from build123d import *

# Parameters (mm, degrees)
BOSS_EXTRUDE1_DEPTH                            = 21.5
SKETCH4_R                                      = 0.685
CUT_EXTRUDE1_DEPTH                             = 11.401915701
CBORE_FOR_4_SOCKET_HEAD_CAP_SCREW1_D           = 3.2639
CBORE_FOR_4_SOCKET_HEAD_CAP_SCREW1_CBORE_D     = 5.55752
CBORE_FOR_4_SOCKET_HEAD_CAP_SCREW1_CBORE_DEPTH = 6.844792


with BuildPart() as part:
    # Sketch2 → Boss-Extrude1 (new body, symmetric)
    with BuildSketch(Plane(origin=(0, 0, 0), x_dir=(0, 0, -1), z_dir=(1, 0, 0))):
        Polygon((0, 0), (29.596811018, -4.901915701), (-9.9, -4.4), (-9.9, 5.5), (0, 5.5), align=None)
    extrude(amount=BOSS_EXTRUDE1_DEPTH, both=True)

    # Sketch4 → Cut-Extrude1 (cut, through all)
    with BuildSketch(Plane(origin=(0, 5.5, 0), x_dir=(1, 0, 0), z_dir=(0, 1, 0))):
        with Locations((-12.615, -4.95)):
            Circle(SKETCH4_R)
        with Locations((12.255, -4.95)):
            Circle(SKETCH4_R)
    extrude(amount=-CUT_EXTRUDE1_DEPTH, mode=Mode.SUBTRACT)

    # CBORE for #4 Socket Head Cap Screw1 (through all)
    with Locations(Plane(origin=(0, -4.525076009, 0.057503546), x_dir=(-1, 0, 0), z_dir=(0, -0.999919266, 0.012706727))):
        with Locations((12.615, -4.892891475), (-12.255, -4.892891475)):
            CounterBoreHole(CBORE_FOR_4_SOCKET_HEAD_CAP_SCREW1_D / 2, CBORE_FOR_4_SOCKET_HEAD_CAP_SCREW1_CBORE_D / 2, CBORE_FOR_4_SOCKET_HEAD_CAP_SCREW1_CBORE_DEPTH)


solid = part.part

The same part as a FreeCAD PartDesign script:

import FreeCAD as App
import Part
import Sketcher
from FreeCAD import Vector

doc = App.newDocument("Part")
params = doc.addObject("Spreadsheet::Sheet", "Params")
for row, (alias, value) in enumerate([
    ("sketch1_length", "30 mm"),
    ("sketch1_width", "5.5 mm"),
    ("sketch1_width2", "9.9 mm"),
    ("sketch1_length2", "39.5 mm"),
    ("pad1_length", "43 mm"),
    ("sketch2_diameter", "1.37 mm"),
    ("hole_diameter", "3.2639 mm"),
    ("hole_cbore_diameter", "5.55752 mm"),
    ("hole_cbore_depth", "6.844792 mm"),
], start=1):
    params.set(f"A{row}", alias)
    params.set(f"B{row}", "=" + value)
    params.setAlias(f"B{row}", alias)

body = doc.addObject("PartDesign::Body", "Body")

# Sketch on YZ plane
sketch1 = body.newObject("Sketcher::SketchObject", "Sketch")
sketch1.AttachmentSupport = (doc.getObject("YZ_Plane"), [""])
sketch1.MapMode = "FlatFace"
sketch1.addGeometry([
    Part.LineSegment(Vector(-5, -30, 0), Vector(0, 0, 0)),  # 0
    Part.LineSegment(Vector(0, 0, 0), Vector(6, 0, 0)),  # 1
    Part.LineSegment(Vector(6, 0, 0), Vector(6, 10, 0)),  # 2
    Part.LineSegment(Vector(6, 10, 0), Vector(-4, 10, 0)),  # 3
    Part.LineSegment(Vector(-4, 10, 0), Vector(-5, -30, 0)),  # 4
], False)
sketch1.addConstraint([
    Sketcher.Constraint("Coincident", 0, 2, 1, 1),
    Sketcher.Constraint("Coincident", 1, 2, 2, 1),
    Sketcher.Constraint("Coincident", 2, 2, 3, 1),
    Sketcher.Constraint("Coincident", 3, 2, 4, 1),
    Sketcher.Constraint("Coincident", 4, 2, 0, 1),
    Sketcher.Constraint("Horizontal", 1),
    Sketcher.Constraint("Vertical", 2),
    Sketcher.Constraint("Horizontal", 3),
    Sketcher.Constraint("Coincident", 0, 2, -1, 1),
    Sketcher.Constraint("Equal", 3, 2),
    Sketcher.Constraint("Distance", 0, 30.0),
    Sketcher.Constraint("DistanceX", 1, 1, 1, 2, 5.5),
    Sketcher.Constraint("DistanceX", 3, 2, 3, 1, 9.9),
    Sketcher.Constraint("Distance", 4, 39.5),
])
sketch1.setExpression("Constraints[10]", "Params.sketch1_length")
sketch1.setExpression("Constraints[11]", "Params.sketch1_width")
sketch1.setExpression("Constraints[12]", "Params.sketch1_width2")
sketch1.setExpression("Constraints[13]", "Params.sketch1_length2")
pad1 = body.newObject("PartDesign::Pad", "Pad")
pad1.Profile = sketch1
pad1.setExpression("Length", "Params.pad1_length")
pad1.Midplane = True

# Sketch on XZ plane
sketch2 = body.newObject("Sketcher::SketchObject", "Sketch001")
sketch2.AttachmentSupport = (doc.getObject("XZ_Plane"), [""])
sketch2.MapMode = "FlatFace"
sketch2.AttachmentOffset = App.Placement(Vector(0, 0, -5.5), App.Rotation())
sketch2.addGeometry([
    Part.Circle(Vector(-12.6, 5, 0), Vector(0, 0, 1), 0.7),
    Part.Circle(Vector(12.3, 5, 0), Vector(0, 0, 1), 0.7),
], False)
sketch2.addConstraint([
    Sketcher.Constraint("Equal", 0, 1),
    Sketcher.Constraint("Horizontal", 0, 3, 1, 3),
    Sketcher.Constraint("Diameter", 0, 1.37),
    Sketcher.Constraint("DistanceY", -1, 1, 0, 3, 4.95),
    Sketcher.Constraint("DistanceX", 0, 3, 1, 3, 24.87),
    Sketcher.Constraint("DistanceX", 0, 3, -1, 1, 12.615),
])
sketch2.setExpression("Constraints[2]", "Params.sketch2_diameter")
pocket1 = body.newObject("PartDesign::Pocket", "Pocket")
pocket1.Profile = sketch2
pocket1.Type = "ThroughAll"
pocket1.Reversed = True

# Sketch on an angled plane
sketch3 = body.newObject("Sketcher::SketchObject", "Sketch002")
sketch3.Placement = App.Placement(Vector(0, -4.525076, 0.057504), App.Rotation(Vector(-1, 0, 0), Vector(0, -0.012706727, -0.999919266), Vector(0, -0.999919266, 0.012706727), "ZXY"))
sketch3.addGeometry([
    Part.Circle(Vector(12.6, -4.9, 0), Vector(0, 0, 1), 1.6),
    Part.Circle(Vector(-12.3, -4.9, 0), Vector(0, 0, 1), 1.6),
], False)
sketch3.addConstraint([
    Sketcher.Constraint("Equal", 0, 1),
    Sketcher.Constraint("Horizontal", 0, 3, 1, 3),
    Sketcher.Constraint("Diameter", 0, 3.2639),
    Sketcher.Constraint("DistanceX", 1, 3, 0, 3, 24.87),
    Sketcher.Constraint("DistanceX", -1, 1, 0, 3, 12.615),
    Sketcher.Constraint("DistanceY", 0, 3, -1, 1, 4.892891),
])
doc.recompute()
hole = body.newObject("PartDesign::Hole", "Hole")
hole.Profile = sketch3
hole.ThreadType = "None"
hole.setExpression("Diameter", "Params.hole_diameter")
hole.DepthType = "ThroughAll"
hole.HoleCutType = "Counterbore"
hole.setExpression("HoleCutDiameter", "Params.hole_cbore_diameter")
hole.setExpression("HoleCutDepth", "Params.hole_cbore_depth")

doc.recompute()
